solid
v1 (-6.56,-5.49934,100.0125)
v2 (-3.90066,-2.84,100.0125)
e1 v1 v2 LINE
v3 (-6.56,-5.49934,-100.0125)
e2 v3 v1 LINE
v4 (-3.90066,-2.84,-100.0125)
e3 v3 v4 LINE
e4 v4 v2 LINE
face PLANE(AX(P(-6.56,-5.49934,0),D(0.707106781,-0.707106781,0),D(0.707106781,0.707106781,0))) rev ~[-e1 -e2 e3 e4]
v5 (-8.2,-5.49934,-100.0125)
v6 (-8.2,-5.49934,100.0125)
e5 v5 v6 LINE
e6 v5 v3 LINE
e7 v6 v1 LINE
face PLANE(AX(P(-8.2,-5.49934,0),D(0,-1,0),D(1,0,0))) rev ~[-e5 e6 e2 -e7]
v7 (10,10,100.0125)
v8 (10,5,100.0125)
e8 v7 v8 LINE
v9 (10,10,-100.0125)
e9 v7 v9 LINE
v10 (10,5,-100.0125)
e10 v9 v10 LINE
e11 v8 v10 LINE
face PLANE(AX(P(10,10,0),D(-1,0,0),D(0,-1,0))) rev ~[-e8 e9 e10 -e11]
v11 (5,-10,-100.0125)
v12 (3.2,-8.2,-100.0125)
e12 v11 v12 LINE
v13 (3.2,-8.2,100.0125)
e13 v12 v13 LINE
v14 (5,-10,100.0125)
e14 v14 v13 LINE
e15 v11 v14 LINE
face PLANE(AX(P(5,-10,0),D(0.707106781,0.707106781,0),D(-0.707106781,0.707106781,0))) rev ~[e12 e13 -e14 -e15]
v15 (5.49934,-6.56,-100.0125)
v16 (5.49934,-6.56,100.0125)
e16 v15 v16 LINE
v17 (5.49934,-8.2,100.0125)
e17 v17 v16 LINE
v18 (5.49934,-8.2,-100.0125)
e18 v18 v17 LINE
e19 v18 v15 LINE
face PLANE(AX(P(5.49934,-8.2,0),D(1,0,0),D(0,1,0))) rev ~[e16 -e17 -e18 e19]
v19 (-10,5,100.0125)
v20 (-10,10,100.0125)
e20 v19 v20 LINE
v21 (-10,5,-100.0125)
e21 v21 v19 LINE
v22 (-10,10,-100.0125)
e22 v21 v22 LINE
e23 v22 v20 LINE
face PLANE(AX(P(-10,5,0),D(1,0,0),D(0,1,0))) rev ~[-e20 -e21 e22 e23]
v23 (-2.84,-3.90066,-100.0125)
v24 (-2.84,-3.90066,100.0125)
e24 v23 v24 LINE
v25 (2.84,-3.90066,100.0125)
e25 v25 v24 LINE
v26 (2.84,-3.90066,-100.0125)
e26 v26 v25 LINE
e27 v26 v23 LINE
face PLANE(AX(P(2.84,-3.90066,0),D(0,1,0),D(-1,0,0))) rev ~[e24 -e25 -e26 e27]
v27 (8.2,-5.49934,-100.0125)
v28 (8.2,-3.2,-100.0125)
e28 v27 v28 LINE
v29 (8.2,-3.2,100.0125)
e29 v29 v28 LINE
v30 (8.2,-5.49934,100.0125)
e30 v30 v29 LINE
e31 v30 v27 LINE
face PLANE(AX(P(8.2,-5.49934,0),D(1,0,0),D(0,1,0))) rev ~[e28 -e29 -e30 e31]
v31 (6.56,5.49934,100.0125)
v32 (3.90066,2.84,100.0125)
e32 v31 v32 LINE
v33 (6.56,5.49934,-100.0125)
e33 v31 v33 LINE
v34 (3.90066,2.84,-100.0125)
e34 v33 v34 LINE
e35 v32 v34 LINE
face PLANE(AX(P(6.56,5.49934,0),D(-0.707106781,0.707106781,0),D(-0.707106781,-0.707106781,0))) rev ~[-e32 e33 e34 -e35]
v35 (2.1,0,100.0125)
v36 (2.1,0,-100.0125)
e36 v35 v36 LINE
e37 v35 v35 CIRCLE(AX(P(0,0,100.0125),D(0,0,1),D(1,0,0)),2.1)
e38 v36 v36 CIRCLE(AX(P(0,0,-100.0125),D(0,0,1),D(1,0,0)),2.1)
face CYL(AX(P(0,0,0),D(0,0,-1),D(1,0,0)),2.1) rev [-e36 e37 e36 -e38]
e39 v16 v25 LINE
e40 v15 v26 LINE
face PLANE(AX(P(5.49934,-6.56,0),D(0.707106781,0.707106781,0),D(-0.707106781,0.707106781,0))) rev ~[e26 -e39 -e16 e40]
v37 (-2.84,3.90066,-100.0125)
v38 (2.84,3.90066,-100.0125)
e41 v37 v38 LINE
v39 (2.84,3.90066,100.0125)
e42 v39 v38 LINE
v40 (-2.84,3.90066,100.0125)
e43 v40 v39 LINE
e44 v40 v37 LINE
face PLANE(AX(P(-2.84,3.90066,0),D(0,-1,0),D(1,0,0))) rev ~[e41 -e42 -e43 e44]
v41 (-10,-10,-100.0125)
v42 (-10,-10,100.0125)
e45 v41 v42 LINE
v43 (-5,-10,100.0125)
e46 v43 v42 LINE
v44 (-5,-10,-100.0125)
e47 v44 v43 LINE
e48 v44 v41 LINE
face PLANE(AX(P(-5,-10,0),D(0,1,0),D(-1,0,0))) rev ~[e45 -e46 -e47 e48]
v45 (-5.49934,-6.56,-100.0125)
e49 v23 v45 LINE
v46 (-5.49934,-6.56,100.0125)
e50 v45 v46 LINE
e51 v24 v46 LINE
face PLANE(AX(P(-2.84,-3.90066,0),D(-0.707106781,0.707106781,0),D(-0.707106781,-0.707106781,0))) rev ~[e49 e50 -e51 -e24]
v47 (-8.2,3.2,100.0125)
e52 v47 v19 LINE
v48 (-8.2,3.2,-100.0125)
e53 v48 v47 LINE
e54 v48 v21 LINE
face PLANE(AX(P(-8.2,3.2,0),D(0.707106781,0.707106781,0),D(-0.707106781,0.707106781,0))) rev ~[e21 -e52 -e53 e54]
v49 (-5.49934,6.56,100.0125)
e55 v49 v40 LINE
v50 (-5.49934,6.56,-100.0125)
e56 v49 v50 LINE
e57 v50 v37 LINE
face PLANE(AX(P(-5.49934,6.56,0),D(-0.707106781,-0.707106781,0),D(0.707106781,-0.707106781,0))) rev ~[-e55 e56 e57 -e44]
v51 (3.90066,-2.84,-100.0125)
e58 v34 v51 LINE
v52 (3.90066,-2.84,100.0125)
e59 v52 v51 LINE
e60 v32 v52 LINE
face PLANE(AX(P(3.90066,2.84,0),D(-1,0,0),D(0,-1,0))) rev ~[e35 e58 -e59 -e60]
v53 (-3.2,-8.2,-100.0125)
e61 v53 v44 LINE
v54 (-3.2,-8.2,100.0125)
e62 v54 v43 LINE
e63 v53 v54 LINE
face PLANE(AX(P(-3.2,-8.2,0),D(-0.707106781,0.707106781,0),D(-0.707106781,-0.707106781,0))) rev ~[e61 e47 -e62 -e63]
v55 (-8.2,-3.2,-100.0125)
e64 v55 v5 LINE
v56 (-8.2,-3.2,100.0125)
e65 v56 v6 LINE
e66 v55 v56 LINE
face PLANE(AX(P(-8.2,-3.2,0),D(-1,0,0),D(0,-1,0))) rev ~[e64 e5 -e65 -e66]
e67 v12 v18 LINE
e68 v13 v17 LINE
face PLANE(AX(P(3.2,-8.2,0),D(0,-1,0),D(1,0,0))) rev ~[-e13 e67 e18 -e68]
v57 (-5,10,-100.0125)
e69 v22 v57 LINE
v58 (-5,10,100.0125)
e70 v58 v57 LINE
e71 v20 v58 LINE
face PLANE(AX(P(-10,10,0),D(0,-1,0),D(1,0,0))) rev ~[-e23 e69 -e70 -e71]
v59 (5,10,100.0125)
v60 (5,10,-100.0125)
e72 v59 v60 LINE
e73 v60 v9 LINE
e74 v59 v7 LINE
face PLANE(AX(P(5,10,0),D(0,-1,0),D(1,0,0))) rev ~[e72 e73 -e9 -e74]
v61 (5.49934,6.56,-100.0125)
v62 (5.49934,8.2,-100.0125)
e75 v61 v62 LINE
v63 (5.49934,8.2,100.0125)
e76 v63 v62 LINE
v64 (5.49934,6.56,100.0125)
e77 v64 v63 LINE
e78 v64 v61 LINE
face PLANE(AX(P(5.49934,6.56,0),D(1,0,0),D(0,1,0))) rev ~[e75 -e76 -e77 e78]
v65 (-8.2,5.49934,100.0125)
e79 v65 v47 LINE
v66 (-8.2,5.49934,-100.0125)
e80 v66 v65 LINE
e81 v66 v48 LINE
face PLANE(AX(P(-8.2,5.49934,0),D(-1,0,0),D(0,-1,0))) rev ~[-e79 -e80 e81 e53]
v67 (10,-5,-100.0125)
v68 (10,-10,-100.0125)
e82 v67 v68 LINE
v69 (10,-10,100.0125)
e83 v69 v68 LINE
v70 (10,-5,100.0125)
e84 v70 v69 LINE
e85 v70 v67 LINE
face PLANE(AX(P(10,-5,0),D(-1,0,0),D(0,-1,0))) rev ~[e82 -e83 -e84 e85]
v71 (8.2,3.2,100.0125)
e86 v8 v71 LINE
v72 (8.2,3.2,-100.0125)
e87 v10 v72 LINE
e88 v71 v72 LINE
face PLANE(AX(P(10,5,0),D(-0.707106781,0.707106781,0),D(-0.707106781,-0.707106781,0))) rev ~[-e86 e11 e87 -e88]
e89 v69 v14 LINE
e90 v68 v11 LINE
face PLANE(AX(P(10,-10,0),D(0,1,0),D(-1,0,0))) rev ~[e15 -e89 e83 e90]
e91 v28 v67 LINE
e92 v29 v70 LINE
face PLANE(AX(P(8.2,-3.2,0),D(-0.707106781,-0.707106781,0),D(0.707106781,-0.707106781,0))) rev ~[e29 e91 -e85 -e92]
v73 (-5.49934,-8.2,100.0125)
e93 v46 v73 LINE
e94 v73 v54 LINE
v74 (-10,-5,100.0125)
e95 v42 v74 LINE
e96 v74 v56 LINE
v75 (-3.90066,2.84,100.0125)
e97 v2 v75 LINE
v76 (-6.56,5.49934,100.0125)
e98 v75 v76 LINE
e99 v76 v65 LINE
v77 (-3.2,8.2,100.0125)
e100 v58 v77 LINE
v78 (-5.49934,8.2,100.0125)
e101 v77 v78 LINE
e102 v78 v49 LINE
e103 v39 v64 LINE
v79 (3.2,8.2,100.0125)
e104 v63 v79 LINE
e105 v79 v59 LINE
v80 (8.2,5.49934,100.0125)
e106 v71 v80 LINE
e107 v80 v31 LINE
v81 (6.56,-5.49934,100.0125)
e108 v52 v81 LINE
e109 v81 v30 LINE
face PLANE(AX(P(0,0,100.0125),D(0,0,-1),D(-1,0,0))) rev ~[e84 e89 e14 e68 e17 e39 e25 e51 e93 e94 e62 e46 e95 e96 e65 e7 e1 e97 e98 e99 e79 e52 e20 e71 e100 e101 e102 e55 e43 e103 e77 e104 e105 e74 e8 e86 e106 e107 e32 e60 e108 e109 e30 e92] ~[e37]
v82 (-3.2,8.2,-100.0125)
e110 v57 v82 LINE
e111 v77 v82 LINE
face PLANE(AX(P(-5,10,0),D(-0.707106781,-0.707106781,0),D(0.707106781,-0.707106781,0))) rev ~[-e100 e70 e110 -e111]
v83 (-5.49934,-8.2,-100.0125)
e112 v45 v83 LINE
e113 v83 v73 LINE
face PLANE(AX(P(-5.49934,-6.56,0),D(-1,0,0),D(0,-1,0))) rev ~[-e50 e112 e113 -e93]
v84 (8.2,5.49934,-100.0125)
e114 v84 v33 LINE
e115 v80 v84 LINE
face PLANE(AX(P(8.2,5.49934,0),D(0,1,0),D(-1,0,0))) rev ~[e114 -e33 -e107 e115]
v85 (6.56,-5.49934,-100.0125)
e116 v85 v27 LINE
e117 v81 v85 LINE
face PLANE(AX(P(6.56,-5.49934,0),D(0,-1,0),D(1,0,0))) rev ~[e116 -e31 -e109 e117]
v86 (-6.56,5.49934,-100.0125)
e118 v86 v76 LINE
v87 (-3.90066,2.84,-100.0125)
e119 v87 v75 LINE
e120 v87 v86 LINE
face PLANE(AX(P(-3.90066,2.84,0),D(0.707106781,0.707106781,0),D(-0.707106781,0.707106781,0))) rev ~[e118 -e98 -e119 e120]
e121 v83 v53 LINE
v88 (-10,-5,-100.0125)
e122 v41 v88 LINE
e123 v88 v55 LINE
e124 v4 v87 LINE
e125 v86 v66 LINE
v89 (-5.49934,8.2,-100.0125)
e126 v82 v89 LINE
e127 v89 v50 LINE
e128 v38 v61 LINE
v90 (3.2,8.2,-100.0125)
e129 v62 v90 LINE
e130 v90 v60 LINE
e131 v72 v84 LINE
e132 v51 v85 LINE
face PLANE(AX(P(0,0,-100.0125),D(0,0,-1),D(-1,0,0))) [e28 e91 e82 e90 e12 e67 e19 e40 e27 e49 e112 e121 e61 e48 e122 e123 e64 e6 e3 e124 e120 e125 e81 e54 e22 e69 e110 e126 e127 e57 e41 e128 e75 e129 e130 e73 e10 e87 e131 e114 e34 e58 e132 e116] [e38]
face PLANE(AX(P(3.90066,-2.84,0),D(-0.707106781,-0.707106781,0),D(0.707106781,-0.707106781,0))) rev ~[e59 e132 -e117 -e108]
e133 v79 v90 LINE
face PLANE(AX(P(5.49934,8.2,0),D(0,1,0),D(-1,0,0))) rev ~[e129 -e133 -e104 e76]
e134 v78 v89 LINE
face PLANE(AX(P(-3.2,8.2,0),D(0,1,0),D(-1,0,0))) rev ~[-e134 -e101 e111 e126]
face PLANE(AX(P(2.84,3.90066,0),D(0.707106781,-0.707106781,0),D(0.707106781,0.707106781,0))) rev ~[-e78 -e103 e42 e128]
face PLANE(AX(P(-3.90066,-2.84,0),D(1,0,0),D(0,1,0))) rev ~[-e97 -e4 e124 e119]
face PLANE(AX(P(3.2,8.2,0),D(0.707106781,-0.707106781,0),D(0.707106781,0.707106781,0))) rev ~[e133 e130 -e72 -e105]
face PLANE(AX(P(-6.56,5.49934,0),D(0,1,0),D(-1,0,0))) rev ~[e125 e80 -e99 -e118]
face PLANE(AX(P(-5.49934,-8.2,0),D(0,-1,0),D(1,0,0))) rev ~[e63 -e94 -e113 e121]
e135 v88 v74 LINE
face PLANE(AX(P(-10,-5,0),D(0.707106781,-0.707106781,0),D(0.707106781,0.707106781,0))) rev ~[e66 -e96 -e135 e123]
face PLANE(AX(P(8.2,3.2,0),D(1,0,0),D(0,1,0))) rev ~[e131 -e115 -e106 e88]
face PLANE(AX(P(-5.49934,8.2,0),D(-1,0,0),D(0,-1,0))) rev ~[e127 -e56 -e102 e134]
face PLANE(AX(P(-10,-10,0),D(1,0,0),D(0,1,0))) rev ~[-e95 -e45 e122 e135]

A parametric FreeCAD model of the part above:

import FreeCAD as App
import Part
import Sketcher

V = App.Vector
Q = App.Units.Quantity

doc = App.newDocument("Part")
body = doc.addObject("PartDesign::Body", "Body")

# Sketch on XY plane
sketch1 = body.newObject("Sketcher::SketchObject", "Sketch")
sketch1.AttachmentSupport = (doc.getObject("XY_Plane"), [""])
sketch1.MapMode = "FlatFace"
sketch1.addGeometry([
    Part.LineSegment(V(-5, 10, 0), V(-10, 10, 0)),  # 0
    Part.LineSegment(V(-10, 10, 0), V(-10, 5, 0)),  # 1
    Part.LineSegment(V(-10, 5, 0), V(-8.2, 3.2, 0)),  # 2
    Part.LineSegment(V(-8.2, 3.2, 0), V(-8.2, 5.49934, 0)),  # 3
    Part.LineSegment(V(-8.2, 5.49934, 0), V(-6.56, 5.49934, 0)),  # 4
    Part.LineSegment(V(-6.56, 5.49934, 0), V(-3.90066, 2.84, 0)),  # 5
    Part.LineSegment(V(-3.90066, 2.84, 0), V(-3.90066, -2.84, 0)),  # 6
    Part.LineSegment(V(-3.90066, -2.84, 0), V(-6.56, -5.49934, 0)),  # 7
    Part.LineSegment(V(-6.56, -5.49934, 0), V(-8.2, -5.49934, 0)),  # 8
    Part.LineSegment(V(-8.2, -5.49934, 0), V(-8.2, -3.2, 0)),  # 9
    Part.LineSegment(V(-8.2, -3.2, 0), V(-10, -5, 0)),  # 10
    Part.LineSegment(V(-10, -5, 0), V(-10, -10, 0)),  # 11
    Part.LineSegment(V(-10, -10, 0), V(-5, -10, 0)),  # 12
    Part.LineSegment(V(-5, -10, 0), V(-3.2, -8.2, 0)),  # 13
    Part.LineSegment(V(-3.2, -8.2, 0), V(-5.49934, -8.2, 0)),  # 14
    Part.LineSegment(V(-5.49934, -8.2, 0), V(-5.49934, -6.56, 0)),  # 15
    Part.LineSegment(V(-5.49934, -6.56, 0), V(-2.84, -3.90066, 0)),  # 16
    Part.LineSegment(V(-2.84, -3.90066, 0), V(2.84, -3.90066, 0)),  # 17
    Part.LineSegment(V(2.84, -3.90066, 0), V(5.49934, -6.56, 0)),  # 18
    Part.LineSegment(V(5.49934, -6.56, 0), V(5.49934, -8.2, 0)),  # 19
    Part.LineSegment(V(5.49934, -8.2, 0), V(3.2, -8.2, 0)),  # 20
    Part.LineSegment(V(3.2, -8.2, 0), V(5, -10, 0)),  # 21
    Part.LineSegment(V(5, -10, 0), V(10, -10, 0)),  # 22
    Part.LineSegment(V(10, -10, 0), V(10, -5, 0)),  # 23
    Part.LineSegment(V(10, -5, 0), V(8.2, -3.2, 0)),  # 24
    Part.LineSegment(V(8.2, -3.2, 0), V(8.2, -5.49934, 0)),  # 25
    Part.LineSegment(V(8.2, -5.49934, 0), V(6.56, -5.49934, 0)),  # 26
    Part.LineSegment(V(6.56, -5.49934, 0), V(3.90066, -2.84, 0)),  # 27
    Part.LineSegment(V(3.90066, -2.84, 0), V(3.90066, 2.84, 0)),  # 28
    Part.LineSegment(V(3.90066, 2.84, 0), V(6.56, 5.49934, 0)),  # 29
    Part.LineSegment(V(6.56, 5.49934, 0), V(8.2, 5.49934, 0)),  # 30
    Part.LineSegment(V(8.2, 5.49934, 0), V(8.2, 3.2, 0)),  # 31
    Part.LineSegment(V(8.2, 3.2, 0), V(10, 5, 0)),  # 32
    Part.LineSegment(V(10, 5, 0), V(10, 10, 0)),  # 33
    Part.LineSegment(V(10, 10, 0), V(5, 10, 0)),  # 34
    Part.LineSegment(V(5, 10, 0), V(3.2, 8.2, 0)),  # 35
    Part.LineSegment(V(3.2, 8.2, 0), V(5.49934, 8.2, 0)),  # 36
    Part.LineSegment(V(5.49934, 8.2, 0), V(5.49934, 6.56, 0)),  # 37
    Part.LineSegment(V(5.49934, 6.56, 0), V(2.84, 3.90066, 0)),  # 38
    Part.LineSegment(V(2.84, 3.90066, 0), V(-2.84, 3.90066, 0)),  # 39
    Part.LineSegment(V(-2.84, 3.90066, 0), V(-5.49934, 6.56, 0)),  # 40
    Part.LineSegment(V(-5.49934, 6.56, 0), V(-5.49934, 8.2, 0)),  # 41
    Part.LineSegment(V(-5.49934, 8.2, 0), V(-3.2, 8.2, 0)),  # 42
    Part.LineSegment(V(-3.2, 8.2, 0), V(-5, 10, 0)),  # 43
    Part.Circle(V(0, 0, 0), V(0, 0, 1), 2.1),  # 44
], False)
sketch1.addConstraint([
    Sketcher.Constraint("Coincident", 0, 2, 1, 1),
    Sketcher.Constraint("Coincident", 1, 2, 2, 1),
    Sketcher.Constraint("Coincident", 2, 2, 3, 1),
    Sketcher.Constraint("Coincident", 3, 2, 4, 1),
    Sketcher.Constraint("Coincident", 4, 2, 5, 1),
    Sketcher.Constraint("Coincident", 5, 2, 6, 1),
    Sketcher.Constraint("Coincident", 6, 2, 7, 1),
    Sketcher.Constraint("Coincident", 7, 2, 8, 1),
    Sketcher.Constraint("Coincident", 8, 2, 9, 1),
    Sketcher.Constraint("Coincident", 9, 2, 10, 1),
    Sketcher.Constraint("Coincident", 10, 2, 11, 1),
    Sketcher.Constraint("Coincident", 11, 2, 12, 1),
    Sketcher.Constraint("Coincident", 12, 2, 13, 1),
    Sketcher.Constraint("Coincident", 13, 2, 14, 1),
    Sketcher.Constraint("Coincident", 14, 2, 15, 1),
    Sketcher.Constraint("Coincident", 15, 2, 16, 1),
    Sketcher.Constraint("Coincident", 16, 2, 17, 1),
    Sketcher.Constraint("Coincident", 17, 2, 18, 1),
    Sketcher.Constraint("Coincident", 18, 2, 19, 1),
    Sketcher.Constraint("Coincident", 19, 2, 20, 1),
    Sketcher.Constraint("Coincident", 20, 2, 21, 1),
    Sketcher.Constraint("Coincident", 21, 2, 22, 1),
    Sketcher.Constraint("Coincident", 22, 2, 23, 1),
    Sketcher.Constraint("Coincident", 23, 2, 24, 1),
    Sketcher.Constraint("Coincident", 24, 2, 25, 1),
    Sketcher.Constraint("Coincident", 25, 2, 26, 1),
    Sketcher.Constraint("Coincident", 26, 2, 27, 1),
    Sketcher.Constraint("Coincident", 27, 2, 28, 1),
    Sketcher.Constraint("Coincident", 28, 2, 29, 1),
    Sketcher.Constraint("Coincident", 29, 2, 30, 1),
    Sketcher.Constraint("Coincident", 30, 2, 31, 1),
    Sketcher.Constraint("Coincident", 31, 2, 32, 1),
    Sketcher.Constraint("Coincident", 32, 2, 33, 1),
    Sketcher.Constraint("Coincident", 33, 2, 34, 1),
    Sketcher.Constraint("Coincident", 34, 2, 35, 1),
    Sketcher.Constraint("Coincident", 35, 2, 36, 1),
    Sketcher.Constraint("Coincident", 36, 2, 37, 1),
    Sketcher.Constraint("Coincident", 37, 2, 38, 1),
    Sketcher.Constraint("Coincident", 38, 2, 39, 1),
    Sketcher.Constraint("Coincident", 39, 2, 40, 1),
    Sketcher.Constraint("Coincident", 40, 2, 41, 1),
    Sketcher.Constraint("Coincident", 41, 2, 42, 1),
    Sketcher.Constraint("Coincident", 42, 2, 43, 1),
    Sketcher.Constraint("Coincident", 43, 2, 0, 1),
    Sketcher.Constraint("Horizontal", 0),
    Sketcher.Constraint("Vertical", 1),
    Sketcher.Constraint("Vertical", 3),
    Sketcher.Constraint("Horizontal", 4),
    Sketcher.Constraint("Vertical", 6),
    Sketcher.Constraint("Horizontal", 8),
    Sketcher.Constraint("Vertical", 9),
    Sketcher.Constraint("Vertical", 11),
    Sketcher.Constraint("Horizontal", 12),
    Sketcher.Constraint("Horizontal", 14),
    Sketcher.Constraint("Vertical", 15),
    Sketcher.Constraint("Horizontal", 17),
    Sketcher.Constraint("Vertical", 19),
    Sketcher.Constraint("Horizontal", 20),
    Sketcher.Constraint("Horizontal", 22),
    Sketcher.Constraint("Vertical", 23),
    Sketcher.Constraint("Vertical", 25),
    Sketcher.Constraint("Horizontal", 26),
    Sketcher.Constraint("Vertical", 28),
    Sketcher.Constraint("Horizontal", 30),
    Sketcher.Constraint("Vertical", 31),
    Sketcher.Constraint("Vertical", 33),
    Sketcher.Constraint("Horizontal", 34),
    Sketcher.Constraint("Horizontal", 36),
    Sketcher.Constraint("Vertical", 37),
    Sketcher.Constraint("Horizontal", 39),
    Sketcher.Constraint("Vertical", 41),
    Sketcher.Constraint("Horizontal", 42),
    Sketcher.Constraint("Coincident", 44, 3, -1, 1),
    Sketcher.Constraint("Symmetric", 0, 2, 22, 2, -1, 1),
    Sketcher.Constraint("Symmetric", 2, 2, 24, 2, -1, 1),
    Sketcher.Constraint("Symmetric", 4, 2, 26, 2, -1, 1),
    Sketcher.Constraint("Symmetric", 5, 2, 27, 2, -1, 1),
    Sketcher.Constraint("Symmetric", 7, 2, 29, 2, -1, 1),
    Sketcher.Constraint("Symmetric", 9, 2, 31, 2, -1, 1),
    Sketcher.Constraint("Symmetric", 10, 2, 32, 2, -1, 1),
    Sketcher.Constraint("Symmetric", 12, 2, 34, 2, -1, 1),
    Sketcher.Constraint("Symmetric", 13, 2, 35, 2, -1, 1),
    Sketcher.Constraint("Symmetric", 15, 2, 37, 2, -1, 1),
    Sketcher.Constraint("Symmetric", 16, 2, 38, 2, -1, 1),
    Sketcher.Constraint("Symmetric", 18, 2, 40, 2, -1, 1),
    Sketcher.Constraint("Symmetric", 20, 2, 42, 2, -1, 1),
    Sketcher.Constraint("Symmetric", 15, 2, 18, 2, -2),
    Sketcher.Constraint("Symmetric", 13, 2, 20, 2, -2),
    Sketcher.Constraint("Symmetric", 12, 2, 21, 2, -2),
    Sketcher.Constraint("Symmetric", 10, 2, 23, 2, -2),
    Sketcher.Constraint("Symmetric", 9, 2, 24, 2, -2),
    Sketcher.Constraint("Symmetric", 7, 2, 26, 2, -2),
    Sketcher.Constraint("Parallel", 2, 5),
    Sketcher.Constraint("Perpendicular", 5, 7),
    Sketcher.Constraint("Parallel", 7, 10),
    Sketcher.Constraint("Parallel", 10, 13),
    Sketcher.Constraint("Parallel", 13, 16),
    Sketcher.Constraint("Perpendicular", 16, 18),
    Sketcher.Constraint("Parallel", 18, 21),
    Sketcher.Constraint("Perpendicular", 27, 29),
    Sketcher.Constraint("Perpendicular", 38, 40),
    Sketcher.Constraint("Parallel", 40, 43),
    Sketcher.Constraint("Equal", 34, 1),
    Sketcher.Constraint("Equal", 42, 3),
    Sketcher.Constraint("Equal", 39, 6),
    Sketcher.Constraint("Equal", 30, 15),
    Sketcher.Constraint("Equal", 10, 13),
    Sketcher.Constraint("Equal", 7, 16),
    Sketcher.Constraint("Diameter", 44, Q("4.2 mm")),
    Sketcher.Constraint("DistanceX", 0, 2, 0, 1, Q("5 mm")),
    Sketcher.Constraint("DistanceX", 0, 2, -1, 1, Q("10 mm")),
    Sketcher.Constraint("DistanceX", 4, 1, 4, 2, Q("1.64 mm")),
    Sketcher.Constraint("DistanceX", 17, 1, 17, 2, Q("5.68 mm")),
    Sketcher.Constraint("DistanceX", 2, 2, -1, 1, Q("8.2 mm")),
    Sketcher.Constraint("DistanceX", 14, 2, 14, 1, Q("2.29934 mm")),
])
pad1 = body.newObject("PartDesign::Pad", "Pad")
pad1.Profile = sketch1
pad1.Length = 200.025
pad1.Midplane = True

doc.recompute()
